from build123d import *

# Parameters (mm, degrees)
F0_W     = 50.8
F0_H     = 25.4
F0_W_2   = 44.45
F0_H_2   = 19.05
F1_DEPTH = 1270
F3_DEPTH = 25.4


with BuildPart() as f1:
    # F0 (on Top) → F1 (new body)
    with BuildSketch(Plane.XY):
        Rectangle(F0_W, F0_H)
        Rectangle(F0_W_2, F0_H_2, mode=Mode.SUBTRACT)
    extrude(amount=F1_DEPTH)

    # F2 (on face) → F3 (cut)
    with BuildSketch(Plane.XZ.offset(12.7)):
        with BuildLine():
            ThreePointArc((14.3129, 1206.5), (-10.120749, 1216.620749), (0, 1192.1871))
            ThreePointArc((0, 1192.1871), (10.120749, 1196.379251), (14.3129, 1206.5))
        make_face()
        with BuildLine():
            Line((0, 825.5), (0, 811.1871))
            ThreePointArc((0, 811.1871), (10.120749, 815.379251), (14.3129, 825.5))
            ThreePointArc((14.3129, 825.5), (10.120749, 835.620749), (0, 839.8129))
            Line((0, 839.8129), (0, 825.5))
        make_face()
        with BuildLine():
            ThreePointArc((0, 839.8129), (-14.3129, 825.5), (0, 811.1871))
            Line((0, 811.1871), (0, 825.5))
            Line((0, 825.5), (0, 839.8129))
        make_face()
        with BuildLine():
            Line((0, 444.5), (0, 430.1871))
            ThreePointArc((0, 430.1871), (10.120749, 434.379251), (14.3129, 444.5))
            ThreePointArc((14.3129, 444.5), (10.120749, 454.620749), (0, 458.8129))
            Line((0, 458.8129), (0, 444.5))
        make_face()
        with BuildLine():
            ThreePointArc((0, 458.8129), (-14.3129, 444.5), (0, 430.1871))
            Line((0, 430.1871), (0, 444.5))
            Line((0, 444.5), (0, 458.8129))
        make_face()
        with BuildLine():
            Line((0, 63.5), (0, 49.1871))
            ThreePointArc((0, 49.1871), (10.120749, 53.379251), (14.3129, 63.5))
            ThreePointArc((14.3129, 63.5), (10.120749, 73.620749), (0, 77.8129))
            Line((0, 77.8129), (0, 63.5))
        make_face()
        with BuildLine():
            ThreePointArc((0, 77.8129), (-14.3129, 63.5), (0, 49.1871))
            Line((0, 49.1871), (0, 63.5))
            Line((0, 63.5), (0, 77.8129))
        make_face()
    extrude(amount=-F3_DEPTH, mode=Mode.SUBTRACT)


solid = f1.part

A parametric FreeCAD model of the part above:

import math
import FreeCAD as App
import Part
import Sketcher
from FreeCAD import Vector
Q = App.Units.Quantity

doc = App.newDocument("Part")
body = doc.addObject("PartDesign::Body", "Body")

# Sketch on XY plane
sketch1 = doc.addObject("Sketcher::SketchObject", "Sketch")
body.addObject(sketch1)
sketch1.AttachmentSupport = (doc.XY_Plane, [""])
sketch1.MapMode = "FlatFace"
sketch1.addGeometry(Part.LineSegment(Vector(-25, 13, 0), Vector(-25, -13, 0)), False)
sketch1.addGeometry(Part.LineSegment(Vector(-25, -13, 0), Vector(25, -13, 0)), False)
sketch1.addGeometry(Part.LineSegment(Vector(25, -13, 0), Vector(25, 13, 0)), False)
sketch1.addGeometry(Part.LineSegment(Vector(25, 13, 0), Vector(-25, 13, 0)), False)
sketch1.addGeometry(Part.LineSegment(Vector(22, -10, 0), Vector(-22, -10, 0)), False)
sketch1.addGeometry(Part.LineSegment(Vector(-22, -10, 0), Vector(-22, 10, 0)), False)
sketch1.addGeometry(Part.LineSegment(Vector(-22, 10, 0), Vector(22, 10, 0)), False)
sketch1.addGeometry(Part.LineSegment(Vector(22, 10, 0), Vector(22, -10, 0)), False)
sketch1.addConstraint(Sketcher.Constraint("Coincident", 0, 2, 1, 1))
sketch1.addConstraint(Sketcher.Constraint("Coincident", 1, 2, 2, 1))
sketch1.addConstraint(Sketcher.Constraint("Coincident", 2, 2, 3, 1))
sketch1.addConstraint(Sketcher.Constraint("Coincident", 3, 2, 0, 1))
sketch1.addConstraint(Sketcher.Constraint("Coincident", 4, 2, 5, 1))
sketch1.addConstraint(Sketcher.Constraint("Coincident", 5, 2, 6, 1))
sketch1.addConstraint(Sketcher.Constraint("Coincident", 6, 2, 7, 1))
sketch1.addConstraint(Sketcher.Constraint("Coincident", 7, 2, 4, 1))
sketch1.addConstraint(Sketcher.Constraint("Vertical", 0))
sketch1.addConstraint(Sketcher.Constraint("Horizontal", 1))
sketch1.addConstraint(Sketcher.Constraint("Vertical", 2))
sketch1.addConstraint(Sketcher.Constraint("Horizontal", 3))
sketch1.addConstraint(Sketcher.Constraint("Horizontal", 4))
sketch1.addConstraint(Sketcher.Constraint("Vertical", 5))
sketch1.addConstraint(Sketcher.Constraint("Horizontal", 6))
sketch1.addConstraint(Sketcher.Constraint("Vertical", 7))
sketch1.addConstraint(Sketcher.Constraint("Symmetric", 0, 2, 2, 2, -1, 1))
sketch1.addConstraint(Sketcher.Constraint("Symmetric", 4, 2, 6, 2, -1, 1))
sketch1.addConstraint(Sketcher.Constraint("DistanceX", 1, 1, 1, 2, Q("2 in")))
sketch1.addConstraint(Sketcher.Constraint("DistanceY", 0, 2, 0, 1, Q("1 in")))
sketch1.addConstraint(Sketcher.Constraint("DistanceX", 4, 2, 4, 1, Q("1.75 in")))
sketch1.addConstraint(Sketcher.Constraint("DistanceY", 5, 1, 5, 2, Q("0.75 in")))
pad1 = doc.addObject("PartDesign::Pad", "Pad")
body.addObject(pad1)
pad1.Profile = sketch1
pad1.Length = Q("50 in")

# Sketch on XZ plane
sketch2 = doc.addObject("Sketcher::SketchObject", "Sketch001")
body.addObject(sketch2)
sketch2.AttachmentSupport = (doc.XZ_Plane, [""])
sketch2.MapMode = "FlatFace"
sketch2.AttachmentOffset = App.Placement(Vector(0, 0, 0.5 * 25.4), App.Rotation())
sketch2.addGeometry(Part.ArcOfCircle(Part.Circle(Vector(0, 1207, 0), Vector(0, 0, 1), 14), math.radians(0), math.radians(270)), False)
sketch2.addGeometry(Part.ArcOfCircle(Part.Circle(Vector(0, 1206, 0), Vector(0, 0, 1), 14), math.radians(-90), math.radians(0)), False)
sketch2.addGeometry(Part.ArcOfCircle(Part.Circle(Vector(0, 825, 0), Vector(0, 0, 1), 14), math.radians(-90), math.radians(0)), False)
sketch2.addGeometry(Part.ArcOfCircle(Part.Circle(Vector(0, 826, 0), Vector(0, 0, 1), 14), math.radians(0), math.radians(90)), False)
sketch2.addGeometry(Part.ArcOfCircle(Part.Circle(Vector(0, 826, 0), Vector(0, 0, 1), 14), math.radians(90), math.radians(270)), False)
sketch2.addGeometry(Part.ArcOfCircle(Part.Circle(Vector(0, 444, 0), Vector(0, 0, 1), 14), math.radians(-90), math.radians(0)), False)
sketch2.addGeometry(Part.ArcOfCircle(Part.Circle(Vector(0, 445, 0), Vector(0, 0, 1), 14), math.radians(0), math.radians(90)), False)
sketch2.addGeometry(Part.ArcOfCircle(Part.Circle(Vector(0, 444, 0), Vector(0, 0, 1), 14), math.radians(90), math.radians(270)), False)
sketch2.addGeometry(Part.ArcOfCircle(Part.Circle(Vector(0, 63, 0), Vector(0, 0, 1), 14), math.radians(-90), math.radians(0)), False)
sketch2.addGeometry(Part.ArcOfCircle(Part.Circle(Vector(0, 64, 0), Vector(0, 0, 1), 14), math.radians(0), math.radians(90)), False)
sketch2.addGeometry(Part.ArcOfCircle(Part.Circle(Vector(0, 64, 0), Vector(0, 0, 1), 14), math.radians(90), math.radians(270)), False)
sketch2.addConstraint(Sketcher.Constraint("Tangent", 0, 1, 1, 2))
sketch2.addConstraint(Sketcher.Constraint("Coincident", 1, 1, 0, 2))
sketch2.addConstraint(Sketcher.Constraint("Tangent", 2, 2, 3, 1))
sketch2.addConstraint(Sketcher.Constraint("Tangent", 3, 2, 4, 1))
sketch2.addConstraint(Sketcher.Constraint("Tangent", 4, 2, 2, 1))
sketch2.addConstraint(Sketcher.Constraint("Tangent", 5, 2, 6, 1))
sketch2.addConstraint(Sketcher.Constraint("Tangent", 6, 2, 7, 1))
sketch2.addConstraint(Sketcher.Constraint("Tangent", 7, 2, 5, 1))
sketch2.addConstraint(Sketcher.Constraint("Tangent", 8, 2, 9, 1))
sketch2.addConstraint(Sketcher.Constraint("Tangent", 9, 2, 10, 1))
sketch2.addConstraint(Sketcher.Constraint("Tangent", 10, 2, 8, 1))
sketch2.addConstraint(Sketcher.Constraint("Equal", 1, 2))
sketch2.addConstraint(Sketcher.Constraint("Equal", 4, 5))
sketch2.addConstraint(Sketcher.Constraint("Equal", 7, 8))
sketch2.addConstraint(Sketcher.Constraint("PointOnObject", 0, 3, -2))
sketch2.addConstraint(Sketcher.Constraint("PointOnObject", 2, 3, -2))
sketch2.addConstraint(Sketcher.Constraint("PointOnObject", 5, 3, -2))
sketch2.addConstraint(Sketcher.Constraint("PointOnObject", 8, 3, -2))
sketch2.addConstraint(Sketcher.Constraint("PointOnObject", 1, 1, -2))
sketch2.addConstraint(Sketcher.Constraint("PointOnObject", 3, 2, -2))
sketch2.addConstraint(Sketcher.Constraint("PointOnObject", 4, 2, -2))
sketch2.addConstraint(Sketcher.Constraint("PointOnObject", 6, 2, -2))
sketch2.addConstraint(Sketcher.Constraint("PointOnObject", 7, 2, -2))
sketch2.addConstraint(Sketcher.Constraint("PointOnObject", 9, 2, -2))
sketch2.addConstraint(Sketcher.Constraint("PointOnObject", 10, 2, -2))
sketch2.addConstraint(Sketcher.Constraint("Horizontal", 1, 3, 0, 1))
sketch2.addConstraint(Sketcher.Constraint("Horizontal", 4, 3, 2, 2))
sketch2.addConstraint(Sketcher.Constraint("Horizontal", 7, 3, 5, 2))
sketch2.addConstraint(Sketcher.Constraint("Horizontal", 10, 3, 8, 2))
sketch2.addConstraint(Sketcher.Constraint("DistanceY", 2, 3, 1, 3, Q("15 in")))
sketch2.addConstraint(Sketcher.Constraint("DistanceY", 5, 3, 2, 3, Q("15 in")))
sketch2.addConstraint(Sketcher.Constraint("DistanceY", 8, 3, 5, 3, Q("15 in")))
sketch2.addConstraint(Sketcher.Constraint("DistanceY", -1, 1, 0, 3, Q("47.5 in")))
sketch2.addConstraint(Sketcher.Constraint("Radius", 0, Q("0.5635 in")))
pocket1 = doc.addObject("PartDesign::Pocket", "Pocket")
body.addObject(pocket1)
pocket1.Profile = sketch2
pocket1.Length = Q("1 in")

doc.recompute()
